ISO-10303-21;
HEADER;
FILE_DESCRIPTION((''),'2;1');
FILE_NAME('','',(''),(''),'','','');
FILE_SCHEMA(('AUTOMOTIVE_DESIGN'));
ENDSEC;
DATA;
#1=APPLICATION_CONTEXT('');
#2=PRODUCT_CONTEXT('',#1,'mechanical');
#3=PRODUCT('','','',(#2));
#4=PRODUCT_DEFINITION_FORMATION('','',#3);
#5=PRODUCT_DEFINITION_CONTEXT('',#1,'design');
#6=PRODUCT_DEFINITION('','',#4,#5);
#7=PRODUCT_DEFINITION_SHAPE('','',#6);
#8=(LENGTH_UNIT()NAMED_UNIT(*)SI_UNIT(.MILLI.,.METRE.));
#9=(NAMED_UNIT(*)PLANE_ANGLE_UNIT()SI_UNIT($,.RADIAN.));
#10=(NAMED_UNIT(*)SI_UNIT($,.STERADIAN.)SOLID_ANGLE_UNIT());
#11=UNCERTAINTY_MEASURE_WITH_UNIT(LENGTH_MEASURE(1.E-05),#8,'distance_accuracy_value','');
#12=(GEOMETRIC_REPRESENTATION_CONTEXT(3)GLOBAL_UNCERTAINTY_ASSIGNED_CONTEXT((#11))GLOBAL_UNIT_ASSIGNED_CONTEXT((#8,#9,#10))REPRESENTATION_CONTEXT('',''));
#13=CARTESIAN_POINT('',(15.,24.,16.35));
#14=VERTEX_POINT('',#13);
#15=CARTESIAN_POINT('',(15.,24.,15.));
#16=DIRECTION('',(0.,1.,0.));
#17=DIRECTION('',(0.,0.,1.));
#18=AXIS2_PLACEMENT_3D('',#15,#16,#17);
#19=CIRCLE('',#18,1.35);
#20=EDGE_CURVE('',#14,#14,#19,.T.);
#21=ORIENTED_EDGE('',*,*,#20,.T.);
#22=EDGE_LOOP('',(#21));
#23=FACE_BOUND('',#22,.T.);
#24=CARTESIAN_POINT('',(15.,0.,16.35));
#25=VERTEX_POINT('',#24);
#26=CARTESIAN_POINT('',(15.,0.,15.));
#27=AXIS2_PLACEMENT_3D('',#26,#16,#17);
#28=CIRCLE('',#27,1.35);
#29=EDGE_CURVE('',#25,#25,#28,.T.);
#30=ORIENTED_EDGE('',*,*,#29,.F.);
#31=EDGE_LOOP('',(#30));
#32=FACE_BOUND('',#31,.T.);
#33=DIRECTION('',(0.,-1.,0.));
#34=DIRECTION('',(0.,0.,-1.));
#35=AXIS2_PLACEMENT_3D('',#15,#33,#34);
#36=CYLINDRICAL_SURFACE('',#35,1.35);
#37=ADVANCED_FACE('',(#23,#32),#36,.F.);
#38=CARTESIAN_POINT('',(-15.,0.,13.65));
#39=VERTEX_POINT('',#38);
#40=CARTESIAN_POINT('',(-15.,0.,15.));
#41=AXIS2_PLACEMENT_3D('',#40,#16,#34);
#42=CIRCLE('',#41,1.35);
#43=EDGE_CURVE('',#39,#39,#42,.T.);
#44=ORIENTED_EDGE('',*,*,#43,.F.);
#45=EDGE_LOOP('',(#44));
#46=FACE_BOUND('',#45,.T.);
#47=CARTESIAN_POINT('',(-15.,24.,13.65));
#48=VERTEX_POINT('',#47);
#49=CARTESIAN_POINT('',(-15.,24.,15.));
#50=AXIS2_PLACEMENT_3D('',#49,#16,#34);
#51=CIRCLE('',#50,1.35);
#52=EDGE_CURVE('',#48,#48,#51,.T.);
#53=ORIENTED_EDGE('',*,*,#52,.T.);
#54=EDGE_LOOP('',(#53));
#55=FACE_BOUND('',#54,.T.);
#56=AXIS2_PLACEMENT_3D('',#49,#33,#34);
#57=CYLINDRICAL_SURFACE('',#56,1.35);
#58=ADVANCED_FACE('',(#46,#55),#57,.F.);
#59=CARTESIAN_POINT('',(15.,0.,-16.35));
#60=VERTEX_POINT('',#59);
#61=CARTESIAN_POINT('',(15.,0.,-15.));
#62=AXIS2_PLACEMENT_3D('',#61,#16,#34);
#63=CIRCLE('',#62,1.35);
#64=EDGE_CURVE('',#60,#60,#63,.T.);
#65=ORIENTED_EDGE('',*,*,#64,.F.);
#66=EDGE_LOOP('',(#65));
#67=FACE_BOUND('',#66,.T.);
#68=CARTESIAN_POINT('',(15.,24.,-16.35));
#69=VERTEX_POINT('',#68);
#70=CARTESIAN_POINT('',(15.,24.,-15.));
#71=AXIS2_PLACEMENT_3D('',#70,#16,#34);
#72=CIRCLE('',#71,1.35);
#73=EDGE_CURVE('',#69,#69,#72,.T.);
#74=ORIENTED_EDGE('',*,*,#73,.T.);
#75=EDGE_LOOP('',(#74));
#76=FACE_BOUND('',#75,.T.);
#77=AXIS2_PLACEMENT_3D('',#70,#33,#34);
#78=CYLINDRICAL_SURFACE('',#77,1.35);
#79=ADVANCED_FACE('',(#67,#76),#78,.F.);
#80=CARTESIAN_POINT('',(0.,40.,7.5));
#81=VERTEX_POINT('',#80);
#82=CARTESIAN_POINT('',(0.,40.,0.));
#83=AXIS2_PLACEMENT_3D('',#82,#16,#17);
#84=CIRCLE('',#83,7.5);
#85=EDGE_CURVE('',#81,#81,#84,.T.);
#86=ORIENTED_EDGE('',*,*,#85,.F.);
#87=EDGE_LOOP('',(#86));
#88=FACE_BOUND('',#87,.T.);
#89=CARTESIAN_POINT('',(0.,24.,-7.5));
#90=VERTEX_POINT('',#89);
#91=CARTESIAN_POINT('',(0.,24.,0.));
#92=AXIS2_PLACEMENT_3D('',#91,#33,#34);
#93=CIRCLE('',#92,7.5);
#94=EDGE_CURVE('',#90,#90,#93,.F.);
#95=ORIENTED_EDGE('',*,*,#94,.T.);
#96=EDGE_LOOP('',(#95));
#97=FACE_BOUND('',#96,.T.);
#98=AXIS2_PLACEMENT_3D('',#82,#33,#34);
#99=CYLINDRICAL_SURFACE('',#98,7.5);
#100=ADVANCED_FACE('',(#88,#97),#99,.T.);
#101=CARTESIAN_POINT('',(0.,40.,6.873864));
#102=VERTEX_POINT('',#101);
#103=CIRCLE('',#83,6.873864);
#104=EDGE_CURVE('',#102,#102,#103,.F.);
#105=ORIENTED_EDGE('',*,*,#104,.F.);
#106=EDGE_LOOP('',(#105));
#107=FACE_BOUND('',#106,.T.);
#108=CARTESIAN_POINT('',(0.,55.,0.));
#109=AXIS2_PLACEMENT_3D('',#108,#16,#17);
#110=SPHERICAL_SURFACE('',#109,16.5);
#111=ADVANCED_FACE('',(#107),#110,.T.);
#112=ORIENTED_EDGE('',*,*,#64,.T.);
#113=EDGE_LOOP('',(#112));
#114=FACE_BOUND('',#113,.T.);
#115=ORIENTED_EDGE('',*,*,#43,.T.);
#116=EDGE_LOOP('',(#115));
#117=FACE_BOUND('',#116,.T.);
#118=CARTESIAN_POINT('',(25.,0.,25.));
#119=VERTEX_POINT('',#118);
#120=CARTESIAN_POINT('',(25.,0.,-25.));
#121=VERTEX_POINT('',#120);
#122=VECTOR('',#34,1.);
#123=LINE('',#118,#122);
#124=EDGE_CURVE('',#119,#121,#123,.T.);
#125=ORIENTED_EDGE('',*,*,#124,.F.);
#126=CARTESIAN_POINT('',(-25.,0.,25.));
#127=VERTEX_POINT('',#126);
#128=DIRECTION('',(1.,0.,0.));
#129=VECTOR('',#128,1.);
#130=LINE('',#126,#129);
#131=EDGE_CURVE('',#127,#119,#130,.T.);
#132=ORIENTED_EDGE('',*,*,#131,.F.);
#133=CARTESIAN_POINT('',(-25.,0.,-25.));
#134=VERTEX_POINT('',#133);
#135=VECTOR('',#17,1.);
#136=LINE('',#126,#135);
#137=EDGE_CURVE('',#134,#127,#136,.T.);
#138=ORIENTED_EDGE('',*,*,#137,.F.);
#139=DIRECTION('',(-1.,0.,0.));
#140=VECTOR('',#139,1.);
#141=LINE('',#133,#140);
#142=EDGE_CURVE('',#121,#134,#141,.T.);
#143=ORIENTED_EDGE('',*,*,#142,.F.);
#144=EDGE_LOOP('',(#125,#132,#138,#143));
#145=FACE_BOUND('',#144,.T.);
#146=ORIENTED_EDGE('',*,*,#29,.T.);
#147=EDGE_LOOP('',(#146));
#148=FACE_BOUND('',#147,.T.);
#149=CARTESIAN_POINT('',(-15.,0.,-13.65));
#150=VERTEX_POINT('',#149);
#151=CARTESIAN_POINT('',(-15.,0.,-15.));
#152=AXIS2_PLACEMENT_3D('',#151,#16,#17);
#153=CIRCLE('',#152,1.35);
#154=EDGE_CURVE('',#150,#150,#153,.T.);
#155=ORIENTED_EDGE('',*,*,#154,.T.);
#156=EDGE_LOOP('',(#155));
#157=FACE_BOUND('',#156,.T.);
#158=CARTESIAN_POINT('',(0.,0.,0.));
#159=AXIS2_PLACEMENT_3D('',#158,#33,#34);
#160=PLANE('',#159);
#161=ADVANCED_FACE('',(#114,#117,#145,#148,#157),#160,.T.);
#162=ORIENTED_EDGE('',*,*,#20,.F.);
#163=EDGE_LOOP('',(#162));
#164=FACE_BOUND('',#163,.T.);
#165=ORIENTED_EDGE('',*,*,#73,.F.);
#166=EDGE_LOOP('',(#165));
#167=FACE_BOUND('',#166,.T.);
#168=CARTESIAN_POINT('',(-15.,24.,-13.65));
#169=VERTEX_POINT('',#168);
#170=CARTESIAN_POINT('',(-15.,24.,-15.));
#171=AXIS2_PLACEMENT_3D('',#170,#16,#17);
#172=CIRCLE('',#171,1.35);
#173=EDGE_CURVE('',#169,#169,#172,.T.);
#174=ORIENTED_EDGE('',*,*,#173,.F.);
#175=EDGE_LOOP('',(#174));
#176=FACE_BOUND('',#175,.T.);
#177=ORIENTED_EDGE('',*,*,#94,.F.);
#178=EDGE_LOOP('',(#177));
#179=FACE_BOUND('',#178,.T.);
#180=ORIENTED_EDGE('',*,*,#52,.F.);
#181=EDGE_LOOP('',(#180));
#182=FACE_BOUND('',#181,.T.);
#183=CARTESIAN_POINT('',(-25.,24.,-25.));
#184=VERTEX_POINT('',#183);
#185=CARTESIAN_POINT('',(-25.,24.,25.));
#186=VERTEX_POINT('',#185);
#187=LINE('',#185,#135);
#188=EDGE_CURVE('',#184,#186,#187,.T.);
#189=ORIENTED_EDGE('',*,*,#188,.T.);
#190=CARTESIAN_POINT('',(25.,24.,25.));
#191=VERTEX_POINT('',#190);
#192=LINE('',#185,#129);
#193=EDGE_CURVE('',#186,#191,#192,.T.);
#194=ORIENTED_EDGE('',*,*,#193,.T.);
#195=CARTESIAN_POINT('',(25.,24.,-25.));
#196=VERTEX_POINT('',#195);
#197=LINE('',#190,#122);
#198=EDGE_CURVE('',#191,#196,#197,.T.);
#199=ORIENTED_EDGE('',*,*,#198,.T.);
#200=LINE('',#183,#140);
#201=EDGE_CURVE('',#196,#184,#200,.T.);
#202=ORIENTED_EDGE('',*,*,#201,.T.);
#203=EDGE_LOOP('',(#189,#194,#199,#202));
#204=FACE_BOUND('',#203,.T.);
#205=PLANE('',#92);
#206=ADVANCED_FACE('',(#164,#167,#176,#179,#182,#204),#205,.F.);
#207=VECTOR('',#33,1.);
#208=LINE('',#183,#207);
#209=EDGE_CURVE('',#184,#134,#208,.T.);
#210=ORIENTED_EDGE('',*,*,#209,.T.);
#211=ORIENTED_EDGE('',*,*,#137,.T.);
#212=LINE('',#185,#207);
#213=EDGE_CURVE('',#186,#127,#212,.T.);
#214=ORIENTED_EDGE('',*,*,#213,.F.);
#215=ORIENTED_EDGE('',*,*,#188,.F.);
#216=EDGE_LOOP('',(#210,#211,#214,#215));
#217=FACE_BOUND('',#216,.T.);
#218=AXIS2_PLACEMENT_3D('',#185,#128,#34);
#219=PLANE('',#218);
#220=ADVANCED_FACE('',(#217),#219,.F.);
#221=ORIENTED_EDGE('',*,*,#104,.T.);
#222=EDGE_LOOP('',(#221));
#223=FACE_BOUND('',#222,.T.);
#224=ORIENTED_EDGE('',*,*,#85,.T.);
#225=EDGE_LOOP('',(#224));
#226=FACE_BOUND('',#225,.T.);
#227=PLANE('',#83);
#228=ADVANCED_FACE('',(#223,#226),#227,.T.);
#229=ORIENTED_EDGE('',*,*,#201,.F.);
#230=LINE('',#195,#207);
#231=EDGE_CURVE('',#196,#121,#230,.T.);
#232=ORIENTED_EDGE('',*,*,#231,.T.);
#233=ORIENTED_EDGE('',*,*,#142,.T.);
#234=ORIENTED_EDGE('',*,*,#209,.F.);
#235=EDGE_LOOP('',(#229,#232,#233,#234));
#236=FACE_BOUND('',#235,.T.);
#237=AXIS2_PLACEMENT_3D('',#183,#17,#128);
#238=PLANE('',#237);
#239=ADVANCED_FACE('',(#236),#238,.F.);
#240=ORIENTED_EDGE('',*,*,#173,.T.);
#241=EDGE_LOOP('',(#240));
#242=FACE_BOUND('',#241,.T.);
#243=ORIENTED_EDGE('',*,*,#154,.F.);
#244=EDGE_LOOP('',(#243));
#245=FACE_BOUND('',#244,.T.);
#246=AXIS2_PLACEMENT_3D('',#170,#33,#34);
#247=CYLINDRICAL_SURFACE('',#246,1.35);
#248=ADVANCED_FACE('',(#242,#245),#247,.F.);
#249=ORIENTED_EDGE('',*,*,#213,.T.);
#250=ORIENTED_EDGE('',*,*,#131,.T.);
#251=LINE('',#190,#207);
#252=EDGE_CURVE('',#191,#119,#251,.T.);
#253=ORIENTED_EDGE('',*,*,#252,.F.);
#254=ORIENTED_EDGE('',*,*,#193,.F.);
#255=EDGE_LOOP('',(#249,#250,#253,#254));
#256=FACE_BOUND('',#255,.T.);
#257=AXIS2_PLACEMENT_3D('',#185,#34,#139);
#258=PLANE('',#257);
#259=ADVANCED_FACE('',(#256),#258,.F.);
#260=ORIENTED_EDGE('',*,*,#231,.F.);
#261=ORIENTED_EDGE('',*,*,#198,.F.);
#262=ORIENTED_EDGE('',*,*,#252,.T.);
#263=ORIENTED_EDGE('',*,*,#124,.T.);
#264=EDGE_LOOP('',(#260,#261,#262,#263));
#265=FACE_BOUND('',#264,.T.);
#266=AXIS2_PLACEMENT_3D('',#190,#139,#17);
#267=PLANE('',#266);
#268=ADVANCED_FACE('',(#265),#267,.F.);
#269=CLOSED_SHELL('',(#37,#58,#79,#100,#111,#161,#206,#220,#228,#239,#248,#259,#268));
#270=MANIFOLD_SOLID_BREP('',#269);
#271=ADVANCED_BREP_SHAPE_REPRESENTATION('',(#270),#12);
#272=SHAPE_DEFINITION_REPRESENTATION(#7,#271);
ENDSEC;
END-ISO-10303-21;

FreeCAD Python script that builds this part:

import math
import FreeCAD as App
import Part
import Sketcher
from FreeCAD import Vector


def add_polygon(sketch, points):
    """Adds a closed chain of lines whose ends are joined by coincident constraints."""
    first, n = sketch.GeometryCount, len(points)
    for a, b in zip(points, points[1:] + points[:1]):
        sketch.addGeometry(Part.LineSegment(App.Vector(*a, 0), App.Vector(*b, 0)), False)
    for i in range(n):
        sketch.addConstraint(Sketcher.Constraint("Coincident", first + i, 2, first + (i + 1) % n, 1))

doc = App.newDocument("Part")
params = doc.addObject("Spreadsheet::Sheet", "Params")
for row, (alias, value) in enumerate([
    ("sketch1_diameter", "2.7 mm"),
    ("sketch1_width", "50 mm"),
    ("pad1_length", "24 mm"),
    ("sketch2_diameter", "15 mm"),
    ("pad2_length", "40 mm"),
    ("sketch3_radius", "16.5 mm"),
    ("revolution_angle", "360 deg"),
], start=1):
    params.set(f"A{row}", alias)
    params.set(f"B{row}", "=" + value)
    params.setAlias(f"B{row}", alias)

body = doc.addObject("PartDesign::Body", "Body")

# Sketch on XZ plane
sketch1 = doc.addObject("Sketcher::SketchObject", "Sketch")
body.addObject(sketch1)
sketch1.AttachmentSupport = (doc.XZ_Plane, [""])
sketch1.MapMode = "FlatFace"
add_polygon(sketch1, [(-25, -25), (-25, 25), (25, 25), (25, -25)])  # lines 0-3
sketch1.addGeometry(Part.Circle(Vector(-15, 15, 0), Vector(0, 0, 1), 1.4), False)  # 4
sketch1.addGeometry(Part.Circle(Vector(15, 15, 0), Vector(0, 0, 1), 1.4), False)  # 5
sketch1.addGeometry(Part.Circle(Vector(-15, -15, 0), Vector(0, 0, 1), 1.4), False)  # 6
sketch1.addGeometry(Part.Circle(Vector(15, -15, 0), Vector(0, 0, 1), 1.4), False)  # 7
sketch1.addConstraint(Sketcher.Constraint("Vertical", 0))
sketch1.addConstraint(Sketcher.Constraint("Horizontal", 1))
sketch1.addConstraint(Sketcher.Constraint("Vertical", 2))
sketch1.addConstraint(Sketcher.Constraint("Horizontal", 3))
sketch1.addConstraint(Sketcher.Constraint("Equal", 4, 5))
sketch1.addConstraint(Sketcher.Constraint("Equal", 5, 6))
sketch1.addConstraint(Sketcher.Constraint("Equal", 6, 7))
sketch1.addConstraint(Sketcher.Constraint("Symmetric", 5, 3, 6, 3, -1, 1))
sketch1.addConstraint(Sketcher.Constraint("Symmetric", 4, 3, 7, 3, -1, 1))
sketch1.addConstraint(Sketcher.Constraint("Symmetric", 0, 2, 2, 2, -1, 1))
sketch1.addConstraint(Sketcher.Constraint("Symmetric", 4, 3, 5, 3, -2))
sketch1.addConstraint(Sketcher.Constraint("Equal", 3, 0))
sketch1.addConstraint(Sketcher.Constraint("Diameter", 4, 2.7))
sketch1.addConstraint(Sketcher.Constraint("DistanceX", 1, 1, 1, 2, 50.0))
sketch1.addConstraint(Sketcher.Constraint("DistanceX", 4, 3, -1, 1, 15.0))
sketch1.addConstraint(Sketcher.Constraint("DistanceY", -1, 1, 4, 3, 15.0))
sketch1.setExpression("Constraints[16]", "Params.sketch1_diameter")
sketch1.setExpression("Constraints[17]", "Params.sketch1_width")
pad1 = doc.addObject("PartDesign::Pad", "Pad")
body.addObject(pad1)
pad1.Profile = sketch1
pad1.setExpression("Length", "Params.pad1_length")
pad1.Reversed = True

# Sketch on XZ plane
sketch2 = doc.addObject("Sketcher::SketchObject", "Sketch001")
body.addObject(sketch2)
sketch2.AttachmentSupport = (doc.XZ_Plane, [""])
sketch2.MapMode = "FlatFace"
sketch2.addGeometry(Part.Circle(Vector(0, 0, 0), Vector(0, 0, 1), 8), False)
sketch2.addConstraint(Sketcher.Constraint("Coincident", 0, 3, -1, 1))
sketch2.addConstraint(Sketcher.Constraint("Diameter", 0, 15.0))
sketch2.setExpression("Constraints[1]", "Params.sketch2_diameter")
pad2 = doc.addObject("PartDesign::Pad", "Pad001")
body.addObject(pad2)
pad2.Profile = sketch2
pad2.setExpression("Length", "Params.pad2_length")
pad2.Reversed = True

# Sketch on XZ plane
sketch3 = doc.addObject("Sketcher::SketchObject", "Sketch002")
body.addObject(sketch3)
sketch3.AttachmentSupport = (doc.XZ_Plane, [""])
sketch3.MapMode = "FlatFace"
sketch3.AttachmentOffset = App.Placement(Vector(0, 0, -55), App.Rotation())
sketch3.addGeometry(Part.LineSegment(Vector(0, -16, 0), Vector(0, 16, 0)), False)
sketch3.addGeometry(Part.ArcOfCircle(Part.Circle(Vector(0, 0, 0), Vector(0, 0, 1), 16), math.radians(-90), math.radians(90)), False)
sketch3.addConstraint(Sketcher.Constraint("Coincident", 0, 1, 1, 1))
sketch3.addConstraint(Sketcher.Constraint("Coincident", 1, 2, 0, 2))
sketch3.addConstraint(Sketcher.Constraint("Vertical", 0))
sketch3.addConstraint(Sketcher.Constraint("Coincident", 1, 3, -1, 1))
sketch3.addConstraint(Sketcher.Constraint("PointOnObject", 0, 1, -2))
sketch3.addConstraint(Sketcher.Constraint("Radius", 1, 16.5))
sketch3.setExpression("Constraints[5]", "Params.sketch3_radius")
revolution = doc.addObject("PartDesign::Revolution", "Revolution")
body.addObject(revolution)
revolution.Profile = sketch3
revolution.ReferenceAxis = (sketch3, ["V_Axis"])
revolution.setExpression("Angle", "Params.revolution_angle")

doc.recompute()
